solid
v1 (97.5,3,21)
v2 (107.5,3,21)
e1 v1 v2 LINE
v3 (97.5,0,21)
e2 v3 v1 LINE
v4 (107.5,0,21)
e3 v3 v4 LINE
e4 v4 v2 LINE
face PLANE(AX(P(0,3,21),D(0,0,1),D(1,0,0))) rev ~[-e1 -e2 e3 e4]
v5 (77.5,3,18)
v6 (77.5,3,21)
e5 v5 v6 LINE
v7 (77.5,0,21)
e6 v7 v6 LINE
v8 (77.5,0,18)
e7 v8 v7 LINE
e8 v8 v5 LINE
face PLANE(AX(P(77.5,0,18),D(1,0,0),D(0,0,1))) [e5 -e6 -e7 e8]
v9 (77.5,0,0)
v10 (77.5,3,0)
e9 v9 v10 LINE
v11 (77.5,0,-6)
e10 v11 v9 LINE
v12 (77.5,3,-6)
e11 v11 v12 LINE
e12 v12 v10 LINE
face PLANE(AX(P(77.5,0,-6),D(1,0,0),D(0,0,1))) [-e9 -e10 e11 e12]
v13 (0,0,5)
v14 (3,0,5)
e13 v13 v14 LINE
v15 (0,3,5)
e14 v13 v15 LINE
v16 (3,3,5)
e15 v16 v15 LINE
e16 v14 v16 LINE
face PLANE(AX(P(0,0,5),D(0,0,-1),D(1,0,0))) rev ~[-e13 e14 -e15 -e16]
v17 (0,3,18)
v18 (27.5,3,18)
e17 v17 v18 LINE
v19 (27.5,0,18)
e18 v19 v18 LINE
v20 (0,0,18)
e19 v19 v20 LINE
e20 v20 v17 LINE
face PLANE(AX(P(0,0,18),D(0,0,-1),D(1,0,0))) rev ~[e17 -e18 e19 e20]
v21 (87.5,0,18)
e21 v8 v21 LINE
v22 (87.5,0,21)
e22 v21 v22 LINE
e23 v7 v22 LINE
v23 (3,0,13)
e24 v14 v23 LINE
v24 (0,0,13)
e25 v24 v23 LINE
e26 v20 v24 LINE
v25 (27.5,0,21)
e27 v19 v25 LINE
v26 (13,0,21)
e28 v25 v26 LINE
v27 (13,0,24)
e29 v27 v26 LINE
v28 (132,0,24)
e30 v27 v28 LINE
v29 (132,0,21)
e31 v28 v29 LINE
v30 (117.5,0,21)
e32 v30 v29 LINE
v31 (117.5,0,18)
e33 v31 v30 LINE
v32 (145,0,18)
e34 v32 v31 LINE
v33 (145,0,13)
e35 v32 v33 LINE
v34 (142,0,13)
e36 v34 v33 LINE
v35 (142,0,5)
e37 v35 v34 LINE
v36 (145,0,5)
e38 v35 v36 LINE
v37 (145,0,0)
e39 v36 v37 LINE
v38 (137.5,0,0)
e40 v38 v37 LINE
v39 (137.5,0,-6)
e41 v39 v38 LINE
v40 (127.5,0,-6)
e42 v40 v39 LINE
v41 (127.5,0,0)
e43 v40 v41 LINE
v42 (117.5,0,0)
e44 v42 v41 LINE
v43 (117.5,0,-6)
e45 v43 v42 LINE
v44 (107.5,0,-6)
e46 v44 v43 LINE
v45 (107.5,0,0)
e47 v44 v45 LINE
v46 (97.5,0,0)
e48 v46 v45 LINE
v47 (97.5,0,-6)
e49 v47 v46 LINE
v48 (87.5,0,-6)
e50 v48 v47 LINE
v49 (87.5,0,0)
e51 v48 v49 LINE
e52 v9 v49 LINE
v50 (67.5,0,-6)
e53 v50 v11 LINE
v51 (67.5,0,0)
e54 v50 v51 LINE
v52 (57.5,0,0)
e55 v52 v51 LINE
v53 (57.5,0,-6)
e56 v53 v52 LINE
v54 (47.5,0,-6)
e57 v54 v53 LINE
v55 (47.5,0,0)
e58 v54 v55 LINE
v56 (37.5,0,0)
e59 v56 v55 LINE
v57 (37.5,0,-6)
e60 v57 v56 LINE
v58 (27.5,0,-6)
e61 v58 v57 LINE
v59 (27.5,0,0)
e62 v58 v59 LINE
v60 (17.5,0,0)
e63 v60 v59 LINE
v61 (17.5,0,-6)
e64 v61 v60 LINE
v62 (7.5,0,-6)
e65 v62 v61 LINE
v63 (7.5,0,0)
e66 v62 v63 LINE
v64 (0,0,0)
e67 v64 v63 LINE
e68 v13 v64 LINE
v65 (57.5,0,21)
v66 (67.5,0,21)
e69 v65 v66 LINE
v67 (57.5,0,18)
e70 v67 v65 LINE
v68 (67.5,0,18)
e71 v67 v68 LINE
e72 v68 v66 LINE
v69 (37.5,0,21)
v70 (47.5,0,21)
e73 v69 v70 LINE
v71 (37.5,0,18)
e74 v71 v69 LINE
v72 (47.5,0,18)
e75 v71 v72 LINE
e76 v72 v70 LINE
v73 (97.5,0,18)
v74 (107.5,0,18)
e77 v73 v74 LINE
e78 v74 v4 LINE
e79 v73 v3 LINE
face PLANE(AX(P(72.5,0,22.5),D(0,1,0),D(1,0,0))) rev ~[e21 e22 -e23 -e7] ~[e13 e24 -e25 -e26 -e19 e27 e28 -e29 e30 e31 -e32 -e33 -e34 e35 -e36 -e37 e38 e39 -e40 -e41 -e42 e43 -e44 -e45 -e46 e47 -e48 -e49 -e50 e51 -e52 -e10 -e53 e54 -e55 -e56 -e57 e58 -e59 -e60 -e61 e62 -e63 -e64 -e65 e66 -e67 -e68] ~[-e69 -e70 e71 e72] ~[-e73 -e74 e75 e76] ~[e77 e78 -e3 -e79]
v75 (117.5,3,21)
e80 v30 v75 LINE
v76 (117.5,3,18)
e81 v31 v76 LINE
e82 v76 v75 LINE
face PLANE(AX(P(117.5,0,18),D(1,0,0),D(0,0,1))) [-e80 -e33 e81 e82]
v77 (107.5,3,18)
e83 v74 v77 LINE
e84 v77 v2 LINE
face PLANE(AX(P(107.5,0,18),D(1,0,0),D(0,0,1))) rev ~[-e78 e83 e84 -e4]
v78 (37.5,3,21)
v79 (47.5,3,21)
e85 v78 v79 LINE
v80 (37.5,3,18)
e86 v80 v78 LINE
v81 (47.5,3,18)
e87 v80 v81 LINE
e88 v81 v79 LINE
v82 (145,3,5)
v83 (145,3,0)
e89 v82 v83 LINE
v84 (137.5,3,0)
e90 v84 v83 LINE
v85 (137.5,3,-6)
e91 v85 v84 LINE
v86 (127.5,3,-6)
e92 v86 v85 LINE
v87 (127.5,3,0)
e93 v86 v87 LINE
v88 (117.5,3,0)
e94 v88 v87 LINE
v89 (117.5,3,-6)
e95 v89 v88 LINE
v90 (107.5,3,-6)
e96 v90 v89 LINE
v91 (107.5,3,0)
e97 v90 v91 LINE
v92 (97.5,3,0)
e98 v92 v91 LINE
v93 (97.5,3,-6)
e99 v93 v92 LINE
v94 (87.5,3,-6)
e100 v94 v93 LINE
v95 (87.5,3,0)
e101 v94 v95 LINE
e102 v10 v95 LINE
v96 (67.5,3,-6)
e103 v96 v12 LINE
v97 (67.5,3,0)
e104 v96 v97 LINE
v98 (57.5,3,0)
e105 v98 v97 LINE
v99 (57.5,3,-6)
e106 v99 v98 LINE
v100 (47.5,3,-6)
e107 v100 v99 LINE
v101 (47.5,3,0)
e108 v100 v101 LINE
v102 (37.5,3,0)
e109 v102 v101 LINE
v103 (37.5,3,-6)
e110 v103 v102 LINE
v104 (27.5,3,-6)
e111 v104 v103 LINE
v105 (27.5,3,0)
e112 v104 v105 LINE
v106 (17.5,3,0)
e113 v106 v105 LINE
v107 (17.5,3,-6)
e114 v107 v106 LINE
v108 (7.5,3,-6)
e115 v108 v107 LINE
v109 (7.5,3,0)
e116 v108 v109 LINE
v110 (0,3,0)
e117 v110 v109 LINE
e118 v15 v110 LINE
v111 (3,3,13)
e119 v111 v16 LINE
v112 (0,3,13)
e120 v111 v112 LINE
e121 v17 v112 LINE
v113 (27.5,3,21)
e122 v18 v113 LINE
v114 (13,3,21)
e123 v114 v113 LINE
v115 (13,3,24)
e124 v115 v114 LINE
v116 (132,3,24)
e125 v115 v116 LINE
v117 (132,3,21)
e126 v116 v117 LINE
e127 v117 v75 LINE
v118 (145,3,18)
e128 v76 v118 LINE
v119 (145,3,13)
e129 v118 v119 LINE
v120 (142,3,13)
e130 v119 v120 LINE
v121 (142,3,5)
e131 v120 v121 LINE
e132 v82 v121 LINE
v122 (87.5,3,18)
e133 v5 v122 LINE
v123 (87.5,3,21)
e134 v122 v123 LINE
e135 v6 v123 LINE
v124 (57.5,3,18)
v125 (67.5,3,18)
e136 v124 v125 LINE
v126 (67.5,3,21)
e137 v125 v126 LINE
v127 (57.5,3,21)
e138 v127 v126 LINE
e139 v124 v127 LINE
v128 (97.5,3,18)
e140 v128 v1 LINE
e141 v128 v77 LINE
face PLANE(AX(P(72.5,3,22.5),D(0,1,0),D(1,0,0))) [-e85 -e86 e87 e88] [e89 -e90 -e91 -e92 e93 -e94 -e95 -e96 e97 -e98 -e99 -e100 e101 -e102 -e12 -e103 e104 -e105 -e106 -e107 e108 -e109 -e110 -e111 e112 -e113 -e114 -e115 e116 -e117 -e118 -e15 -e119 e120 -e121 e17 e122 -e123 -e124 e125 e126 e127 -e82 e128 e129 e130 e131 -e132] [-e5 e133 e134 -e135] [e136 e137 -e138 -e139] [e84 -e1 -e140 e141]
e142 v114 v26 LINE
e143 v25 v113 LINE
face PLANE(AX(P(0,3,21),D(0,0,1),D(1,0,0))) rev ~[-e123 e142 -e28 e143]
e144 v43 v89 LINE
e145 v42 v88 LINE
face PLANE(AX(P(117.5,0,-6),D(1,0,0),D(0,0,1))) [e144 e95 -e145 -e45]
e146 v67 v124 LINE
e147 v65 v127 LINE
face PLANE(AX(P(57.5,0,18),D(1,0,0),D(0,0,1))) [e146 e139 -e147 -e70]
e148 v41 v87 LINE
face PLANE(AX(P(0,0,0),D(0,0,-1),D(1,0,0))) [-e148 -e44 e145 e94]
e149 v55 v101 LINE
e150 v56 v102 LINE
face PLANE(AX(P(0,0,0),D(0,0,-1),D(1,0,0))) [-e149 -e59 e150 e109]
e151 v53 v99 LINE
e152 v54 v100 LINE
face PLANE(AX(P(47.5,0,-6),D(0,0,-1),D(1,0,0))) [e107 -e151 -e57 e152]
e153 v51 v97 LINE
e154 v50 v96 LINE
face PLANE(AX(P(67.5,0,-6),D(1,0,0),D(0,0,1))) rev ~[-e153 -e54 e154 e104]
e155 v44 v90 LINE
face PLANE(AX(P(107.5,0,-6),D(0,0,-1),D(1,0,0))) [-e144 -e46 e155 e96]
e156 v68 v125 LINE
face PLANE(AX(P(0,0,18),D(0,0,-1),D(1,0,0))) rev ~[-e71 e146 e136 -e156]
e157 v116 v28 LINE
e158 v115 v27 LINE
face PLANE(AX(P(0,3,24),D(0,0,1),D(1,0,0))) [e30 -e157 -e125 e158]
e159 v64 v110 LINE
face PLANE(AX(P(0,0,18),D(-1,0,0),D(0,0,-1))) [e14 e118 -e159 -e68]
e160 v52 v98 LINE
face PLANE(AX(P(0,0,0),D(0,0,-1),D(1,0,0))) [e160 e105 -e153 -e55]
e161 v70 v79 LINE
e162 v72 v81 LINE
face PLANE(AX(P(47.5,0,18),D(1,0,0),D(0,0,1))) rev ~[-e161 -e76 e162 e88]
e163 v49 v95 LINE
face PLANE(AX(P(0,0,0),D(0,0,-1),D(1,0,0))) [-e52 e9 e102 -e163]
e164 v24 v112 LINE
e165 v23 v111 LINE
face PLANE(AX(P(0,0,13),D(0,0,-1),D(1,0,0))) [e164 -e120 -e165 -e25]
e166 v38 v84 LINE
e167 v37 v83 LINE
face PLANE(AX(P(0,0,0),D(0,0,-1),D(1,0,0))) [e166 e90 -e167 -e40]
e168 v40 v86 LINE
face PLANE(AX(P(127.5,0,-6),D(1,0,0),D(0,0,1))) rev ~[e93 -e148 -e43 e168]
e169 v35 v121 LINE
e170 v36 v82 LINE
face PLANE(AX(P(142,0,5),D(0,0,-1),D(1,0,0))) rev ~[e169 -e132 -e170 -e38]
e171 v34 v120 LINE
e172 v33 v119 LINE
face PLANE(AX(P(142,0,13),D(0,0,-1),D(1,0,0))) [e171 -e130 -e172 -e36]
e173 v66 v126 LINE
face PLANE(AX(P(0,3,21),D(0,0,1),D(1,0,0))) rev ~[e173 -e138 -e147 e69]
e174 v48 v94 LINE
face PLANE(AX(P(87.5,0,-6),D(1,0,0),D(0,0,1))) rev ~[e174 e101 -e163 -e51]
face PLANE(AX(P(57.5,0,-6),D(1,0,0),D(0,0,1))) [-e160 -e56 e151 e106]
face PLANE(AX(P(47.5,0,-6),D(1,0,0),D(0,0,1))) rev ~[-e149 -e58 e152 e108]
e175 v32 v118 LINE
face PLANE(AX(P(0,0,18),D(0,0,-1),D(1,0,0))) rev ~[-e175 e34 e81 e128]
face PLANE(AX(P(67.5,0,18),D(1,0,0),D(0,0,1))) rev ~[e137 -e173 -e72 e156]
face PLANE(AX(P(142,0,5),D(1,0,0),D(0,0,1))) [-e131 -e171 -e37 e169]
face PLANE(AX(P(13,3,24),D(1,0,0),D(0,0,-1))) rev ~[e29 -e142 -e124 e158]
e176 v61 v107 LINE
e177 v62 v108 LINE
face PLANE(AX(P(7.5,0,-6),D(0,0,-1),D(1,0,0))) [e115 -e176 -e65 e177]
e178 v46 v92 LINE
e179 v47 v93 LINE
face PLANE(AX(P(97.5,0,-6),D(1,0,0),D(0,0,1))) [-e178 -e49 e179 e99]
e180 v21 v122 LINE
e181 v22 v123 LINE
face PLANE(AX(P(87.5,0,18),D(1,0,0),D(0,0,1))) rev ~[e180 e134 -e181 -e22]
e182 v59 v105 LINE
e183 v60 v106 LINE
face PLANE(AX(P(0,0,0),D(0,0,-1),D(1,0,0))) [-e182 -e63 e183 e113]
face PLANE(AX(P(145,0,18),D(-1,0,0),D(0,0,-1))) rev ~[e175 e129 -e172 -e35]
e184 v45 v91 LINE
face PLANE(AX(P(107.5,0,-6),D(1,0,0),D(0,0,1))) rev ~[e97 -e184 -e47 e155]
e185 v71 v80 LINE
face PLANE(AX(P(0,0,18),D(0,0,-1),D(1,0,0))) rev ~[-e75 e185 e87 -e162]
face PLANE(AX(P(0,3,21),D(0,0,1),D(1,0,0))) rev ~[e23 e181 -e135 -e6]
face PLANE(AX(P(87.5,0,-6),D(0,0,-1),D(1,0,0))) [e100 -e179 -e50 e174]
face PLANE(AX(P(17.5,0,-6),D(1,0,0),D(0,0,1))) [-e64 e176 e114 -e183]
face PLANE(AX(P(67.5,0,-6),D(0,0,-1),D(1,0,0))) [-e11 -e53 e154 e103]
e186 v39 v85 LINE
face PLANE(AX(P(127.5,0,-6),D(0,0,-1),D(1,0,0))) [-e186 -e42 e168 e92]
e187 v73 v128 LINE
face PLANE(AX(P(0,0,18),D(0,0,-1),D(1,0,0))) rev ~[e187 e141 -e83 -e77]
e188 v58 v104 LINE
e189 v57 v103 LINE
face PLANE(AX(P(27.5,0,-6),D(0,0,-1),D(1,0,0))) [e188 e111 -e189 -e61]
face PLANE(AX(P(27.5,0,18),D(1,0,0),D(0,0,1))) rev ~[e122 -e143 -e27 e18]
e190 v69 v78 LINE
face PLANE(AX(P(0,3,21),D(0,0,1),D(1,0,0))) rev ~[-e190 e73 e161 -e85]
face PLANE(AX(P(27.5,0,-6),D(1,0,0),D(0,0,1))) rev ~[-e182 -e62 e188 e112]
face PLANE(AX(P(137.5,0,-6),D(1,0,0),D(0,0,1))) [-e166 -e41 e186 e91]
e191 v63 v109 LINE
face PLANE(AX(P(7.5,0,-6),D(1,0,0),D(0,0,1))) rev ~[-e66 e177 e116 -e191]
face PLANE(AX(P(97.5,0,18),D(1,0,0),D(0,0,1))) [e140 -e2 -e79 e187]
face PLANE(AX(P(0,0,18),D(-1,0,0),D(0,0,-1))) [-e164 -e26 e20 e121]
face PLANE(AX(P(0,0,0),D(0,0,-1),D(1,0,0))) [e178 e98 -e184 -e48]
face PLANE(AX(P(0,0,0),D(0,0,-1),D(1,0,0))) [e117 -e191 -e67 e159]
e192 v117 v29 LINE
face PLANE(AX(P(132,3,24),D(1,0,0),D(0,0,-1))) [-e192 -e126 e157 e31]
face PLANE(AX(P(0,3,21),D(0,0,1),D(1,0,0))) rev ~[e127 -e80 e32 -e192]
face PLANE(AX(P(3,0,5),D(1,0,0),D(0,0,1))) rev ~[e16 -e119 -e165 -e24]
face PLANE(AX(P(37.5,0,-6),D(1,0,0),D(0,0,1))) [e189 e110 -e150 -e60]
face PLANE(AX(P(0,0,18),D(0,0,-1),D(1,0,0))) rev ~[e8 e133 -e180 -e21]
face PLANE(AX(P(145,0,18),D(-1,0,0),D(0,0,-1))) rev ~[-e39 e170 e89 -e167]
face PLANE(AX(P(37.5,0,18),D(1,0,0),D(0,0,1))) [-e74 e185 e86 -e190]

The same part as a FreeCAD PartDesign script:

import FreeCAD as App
import Part
import Sketcher

V = App.Vector
Q = App.Units.Quantity


def add_polygon(sketch, points):
    """Adds a closed chain of lines whose ends are joined by coincident constraints."""
    first, n = sketch.GeometryCount, len(points)
    for a, b in zip(points, points[1:] + points[:1]):
        sketch.addGeometry(Part.LineSegment(App.Vector(*a, 0), App.Vector(*b, 0)), False)
    for i in range(n):
        sketch.addConstraint(Sketcher.Constraint("Coincident", first + i, 2, first + (i + 1) % n, 1))

doc = App.newDocument("Part")
body = doc.addObject("PartDesign::Body", "Body")

# Sketch on XZ plane
sketch1 = body.newObject("Sketcher::SketchObject", "Sketch")
sketch1.AttachmentSupport = (doc.getObject("XZ_Plane"), [""])
sketch1.MapMode = "FlatFace"
add_polygon(sketch1, [(0, 0), (0, 18), (145, 18), (145, 0)])  # lines 0-3
sketch1.addConstraint([
    Sketcher.Constraint("Vertical", 0),
    Sketcher.Constraint("Horizontal", 1),
    Sketcher.Constraint("Vertical", 2),
    Sketcher.Constraint("Horizontal", 3),
    Sketcher.Constraint("Coincident", 3, 2, -1, 1),
    Sketcher.Constraint("DistanceX", 1, 1, 1, 2, Q("145 mm")),
    Sketcher.Constraint("DistanceY", 0, 1, 0, 2, Q("18 mm")),
])
pad1 = body.newObject("PartDesign::Pad", "Pad")
pad1.Profile = sketch1
pad1.Length = 3
pad1.Reversed = True

# Sketch on XZ plane
sketch2 = body.newObject("Sketcher::SketchObject", "Sketch001")
sketch2.AttachmentSupport = (doc.getObject("XZ_Plane"), [""])
sketch2.MapMode = "FlatFace"
add_polygon(sketch2, [(67.5, 21), (67.5, 18), (77.5, 18), (77.5, 21)])  # lines 0-3
add_polygon(sketch2, [(67.5, 0), (67.5, -6), (77.5, -6), (77.5, 0)])  # lines 4-7
sketch2.addConstraint([
    Sketcher.Constraint("Vertical", 0),
    Sketcher.Constraint("Horizontal", 1),
    Sketcher.Constraint("Vertical", 2),
    Sketcher.Constraint("Horizontal", 3),
    Sketcher.Constraint("Vertical", 4),
    Sketcher.Constraint("Horizontal", 5),
    Sketcher.Constraint("Vertical", 6),
    Sketcher.Constraint("Horizontal", 7),
    Sketcher.Constraint("PointOnObject", 6, 2, -1),
    Sketcher.Constraint("Vertical", 3, 2, 4, 2),
    Sketcher.Constraint("Vertical", 2, 2, 5, 2),
    Sketcher.Constraint("DistanceX", 1, 1, 1, 2, Q("10 mm")),
    Sketcher.Constraint("DistanceY", 0, 2, 0, 1, Q("3 mm")),
    Sketcher.Constraint("DistanceY", 4, 2, 4, 1, Q("6 mm")),
    Sketcher.Constraint("DistanceY", -1, 1, 0, 2, Q("18 mm")),
    Sketcher.Constraint("DistanceX", -1, 1, 0, 2, Q("67.5 mm")),
])
pad2 = body.newObject("PartDesign::Pad", "Pad001")
pad2.Profile = sketch2
pad2.Type = "UpToLast"
pad2.Reversed = True
doc.recompute()

linearpattern = body.newObject("PartDesign::LinearPattern", "LinearPattern")
linearpattern.Originals = [pad2]
linearpattern.Direction = (doc.getObject("X_Axis"), [""])
linearpattern.Mode = "offset"
linearpattern.Offset = 20
linearpattern.Occurrences = 4
body.Tip = linearpattern
doc.recompute()

linearpattern2 = body.newObject("PartDesign::LinearPattern", "LinearPattern001")
linearpattern2.Originals = [pad2]
linearpattern2.Direction = (doc.getObject("X_Axis"), [""])
linearpattern2.Mode = "offset"
linearpattern2.Offset = 20
linearpattern2.Occurrences = 4
linearpattern2.Reversed = True
body.Tip = linearpattern2

# Sketch on XZ plane
sketch3 = body.newObject("Sketcher::SketchObject", "Sketch002")
sketch3.AttachmentSupport = (doc.getObject("XZ_Plane"), [""])
sketch3.MapMode = "FlatFace"
sketch3.AttachmentOffset = App.Placement(V(0, 0, -3), App.Rotation())
add_polygon(sketch3, [(0, 21), (0, 24), (145, 24), (145, 21)])  # lines 0-3
sketch3.addConstraint([
    Sketcher.Constraint("Vertical", 0),
    Sketcher.Constraint("Horizontal", 1),
    Sketcher.Constraint("Vertical", 2),
    Sketcher.Constraint("Horizontal", 3),
    Sketcher.Constraint("PointOnObject", 0, 2, -2),
    Sketcher.Constraint("DistanceX", 1, 1, 1, 2, Q("145 mm")),
    Sketcher.Constraint("DistanceY", 0, 1, 0, 2, Q("3 mm")),
    Sketcher.Constraint("DistanceY", -1, 1, 0, 2, Q("24 mm")),
])
pad3 = body.newObject("PartDesign::Pad", "Pad002")
pad3.Profile = sketch3
pad3.Length = 3

# Sketch on XZ plane
sketch4 = body.newObject("Sketcher::SketchObject", "Sketch003")
sketch4.AttachmentSupport = (doc.getObject("XZ_Plane"), [""])
sketch4.MapMode = "FlatFace"
sketch4.AttachmentOffset = App.Placement(V(0, 0, -3), App.Rotation())
add_polygon(sketch4, [(7.5, 18), (7.5, 21), (17.5, 21), (17.5, 18)])  # lines 0-3
add_polygon(sketch4, [(127.5, 18), (127.5, 21), (137.5, 21), (137.5, 18)])  # lines 4-7
sketch4.addConstraint([
    Sketcher.Constraint("Vertical", 0),
    Sketcher.Constraint("Horizontal", 1),
    Sketcher.Constraint("Vertical", 2),
    Sketcher.Constraint("Horizontal", 3),
    Sketcher.Constraint("Vertical", 4),
    Sketcher.Constraint("Horizontal", 5),
    Sketcher.Constraint("Vertical", 6),
    Sketcher.Constraint("Horizontal", 7),
    Sketcher.Constraint("Horizontal", 1, 2, 4, 2),
    Sketcher.Constraint("Horizontal", 3, 2, 6, 2),
    Sketcher.Constraint("Equal", 3, 5),
    Sketcher.Constraint("DistanceX", 1, 1, 1, 2, Q("10 mm")),
    Sketcher.Constraint("DistanceY", 0, 1, 0, 2, Q("3 mm")),
    Sketcher.Constraint("DistanceY", -1, 1, 0, 2, Q("21 mm")),
    Sketcher.Constraint("DistanceX", 1, 2, 4, 2, Q("110 mm")),
    Sketcher.Constraint("DistanceX", -1, 1, 0, 2, Q("7.5 mm")),
])
pocket1 = body.newObject("PartDesign::Pocket", "Pocket")
pocket1.Profile = sketch4
pocket1.Type = "ThroughAll"
pocket1.Reversed = True

# Sketch on XZ plane
sketch5 = body.newObject("Sketcher::SketchObject", "Sketch004")
sketch5.AttachmentSupport = (doc.getObject("XZ_Plane"), [""])
sketch5.MapMode = "FlatFace"
sketch5.AttachmentOffset = App.Placement(V(0, 0, -3), App.Rotation())
add_polygon(sketch5, [(0, 21), (0, 24), (13, 24), (13, 21)])  # lines 0-3
add_polygon(sketch5, [(132, 21), (132, 24), (145, 24), (145, 21)])  # lines 4-7
sketch5.addConstraint([
    Sketcher.Constraint("Vertical", 0),
    Sketcher.Constraint("Horizontal", 1),
    Sketcher.Constraint("Vertical", 2),
    Sketcher.Constraint("Horizontal", 3),
    Sketcher.Constraint("Vertical", 4),
    Sketcher.Constraint("Horizontal", 5),
    Sketcher.Constraint("Vertical", 6),
    Sketcher.Constraint("Horizontal", 7),
    Sketcher.Constraint("PointOnObject", 0, 2, -2),
    Sketcher.Constraint("Horizontal", 1, 2, 4, 2),
    Sketcher.Constraint("Horizontal", 3, 2, 6, 2),
    Sketcher.Constraint("Equal", 3, 5),
    Sketcher.Constraint("DistanceX", 1, 1, 1, 2, Q("13 mm")),
    Sketcher.Constraint("DistanceY", 0, 1, 0, 2, Q("3 mm")),
    Sketcher.Constraint("DistanceY", -1, 1, 0, 2, Q("24 mm")),
    Sketcher.Constraint("DistanceX", -1, 1, 4, 2, Q("132 mm")),
])
pocket2 = body.newObject("PartDesign::Pocket", "Pocket001")
pocket2.Profile = sketch5
pocket2.Type = "ThroughAll"
pocket2.Reversed = True

# Sketch on XZ plane
sketch6 = body.newObject("Sketcher::SketchObject", "Sketch005")
sketch6.AttachmentSupport = (doc.getObject("XZ_Plane"), [""])
sketch6.MapMode = "FlatFace"
add_polygon(sketch6, [(0, 13), (0, 5), (3, 5), (3, 13)])  # lines 0-3
add_polygon(sketch6, [(142, 13), (142, 5), (145, 5), (145, 13)])  # lines 4-7
sketch6.addConstraint([
    Sketcher.Constraint("Vertical", 0),
    Sketcher.Constraint("Horizontal", 1),
    Sketcher.Constraint("Vertical", 2),
    Sketcher.Constraint("Horizontal", 3),
    Sketcher.Constraint("Vertical", 4),
    Sketcher.Constraint("Horizontal", 5),
    Sketcher.Constraint("Vertical", 6),
    Sketcher.Constraint("Horizontal", 7),
    Sketcher.Constraint("PointOnObject", 0, 2, -2),
    Sketcher.Constraint("Horizontal", 1, 2, 4, 2),
    Sketcher.Constraint("Horizontal", 3, 2, 6, 2),
    Sketcher.Constraint("Equal", 3, 5),
    Sketcher.Constraint("DistanceX", 1, 1, 1, 2, Q("3 mm")),
    Sketcher.Constraint("DistanceY", 0, 2, 0, 1, Q("8 mm")),
    Sketcher.Constraint("DistanceY", -1, 1, 0, 2, Q("5 mm")),
    Sketcher.Constraint("DistanceX", -1, 1, 4, 2, Q("142 mm")),
])
pocket3 = body.newObject("PartDesign::Pocket", "Pocket002")
pocket3.Profile = sketch6
pocket3.Type = "ThroughAll"

doc.recompute()
